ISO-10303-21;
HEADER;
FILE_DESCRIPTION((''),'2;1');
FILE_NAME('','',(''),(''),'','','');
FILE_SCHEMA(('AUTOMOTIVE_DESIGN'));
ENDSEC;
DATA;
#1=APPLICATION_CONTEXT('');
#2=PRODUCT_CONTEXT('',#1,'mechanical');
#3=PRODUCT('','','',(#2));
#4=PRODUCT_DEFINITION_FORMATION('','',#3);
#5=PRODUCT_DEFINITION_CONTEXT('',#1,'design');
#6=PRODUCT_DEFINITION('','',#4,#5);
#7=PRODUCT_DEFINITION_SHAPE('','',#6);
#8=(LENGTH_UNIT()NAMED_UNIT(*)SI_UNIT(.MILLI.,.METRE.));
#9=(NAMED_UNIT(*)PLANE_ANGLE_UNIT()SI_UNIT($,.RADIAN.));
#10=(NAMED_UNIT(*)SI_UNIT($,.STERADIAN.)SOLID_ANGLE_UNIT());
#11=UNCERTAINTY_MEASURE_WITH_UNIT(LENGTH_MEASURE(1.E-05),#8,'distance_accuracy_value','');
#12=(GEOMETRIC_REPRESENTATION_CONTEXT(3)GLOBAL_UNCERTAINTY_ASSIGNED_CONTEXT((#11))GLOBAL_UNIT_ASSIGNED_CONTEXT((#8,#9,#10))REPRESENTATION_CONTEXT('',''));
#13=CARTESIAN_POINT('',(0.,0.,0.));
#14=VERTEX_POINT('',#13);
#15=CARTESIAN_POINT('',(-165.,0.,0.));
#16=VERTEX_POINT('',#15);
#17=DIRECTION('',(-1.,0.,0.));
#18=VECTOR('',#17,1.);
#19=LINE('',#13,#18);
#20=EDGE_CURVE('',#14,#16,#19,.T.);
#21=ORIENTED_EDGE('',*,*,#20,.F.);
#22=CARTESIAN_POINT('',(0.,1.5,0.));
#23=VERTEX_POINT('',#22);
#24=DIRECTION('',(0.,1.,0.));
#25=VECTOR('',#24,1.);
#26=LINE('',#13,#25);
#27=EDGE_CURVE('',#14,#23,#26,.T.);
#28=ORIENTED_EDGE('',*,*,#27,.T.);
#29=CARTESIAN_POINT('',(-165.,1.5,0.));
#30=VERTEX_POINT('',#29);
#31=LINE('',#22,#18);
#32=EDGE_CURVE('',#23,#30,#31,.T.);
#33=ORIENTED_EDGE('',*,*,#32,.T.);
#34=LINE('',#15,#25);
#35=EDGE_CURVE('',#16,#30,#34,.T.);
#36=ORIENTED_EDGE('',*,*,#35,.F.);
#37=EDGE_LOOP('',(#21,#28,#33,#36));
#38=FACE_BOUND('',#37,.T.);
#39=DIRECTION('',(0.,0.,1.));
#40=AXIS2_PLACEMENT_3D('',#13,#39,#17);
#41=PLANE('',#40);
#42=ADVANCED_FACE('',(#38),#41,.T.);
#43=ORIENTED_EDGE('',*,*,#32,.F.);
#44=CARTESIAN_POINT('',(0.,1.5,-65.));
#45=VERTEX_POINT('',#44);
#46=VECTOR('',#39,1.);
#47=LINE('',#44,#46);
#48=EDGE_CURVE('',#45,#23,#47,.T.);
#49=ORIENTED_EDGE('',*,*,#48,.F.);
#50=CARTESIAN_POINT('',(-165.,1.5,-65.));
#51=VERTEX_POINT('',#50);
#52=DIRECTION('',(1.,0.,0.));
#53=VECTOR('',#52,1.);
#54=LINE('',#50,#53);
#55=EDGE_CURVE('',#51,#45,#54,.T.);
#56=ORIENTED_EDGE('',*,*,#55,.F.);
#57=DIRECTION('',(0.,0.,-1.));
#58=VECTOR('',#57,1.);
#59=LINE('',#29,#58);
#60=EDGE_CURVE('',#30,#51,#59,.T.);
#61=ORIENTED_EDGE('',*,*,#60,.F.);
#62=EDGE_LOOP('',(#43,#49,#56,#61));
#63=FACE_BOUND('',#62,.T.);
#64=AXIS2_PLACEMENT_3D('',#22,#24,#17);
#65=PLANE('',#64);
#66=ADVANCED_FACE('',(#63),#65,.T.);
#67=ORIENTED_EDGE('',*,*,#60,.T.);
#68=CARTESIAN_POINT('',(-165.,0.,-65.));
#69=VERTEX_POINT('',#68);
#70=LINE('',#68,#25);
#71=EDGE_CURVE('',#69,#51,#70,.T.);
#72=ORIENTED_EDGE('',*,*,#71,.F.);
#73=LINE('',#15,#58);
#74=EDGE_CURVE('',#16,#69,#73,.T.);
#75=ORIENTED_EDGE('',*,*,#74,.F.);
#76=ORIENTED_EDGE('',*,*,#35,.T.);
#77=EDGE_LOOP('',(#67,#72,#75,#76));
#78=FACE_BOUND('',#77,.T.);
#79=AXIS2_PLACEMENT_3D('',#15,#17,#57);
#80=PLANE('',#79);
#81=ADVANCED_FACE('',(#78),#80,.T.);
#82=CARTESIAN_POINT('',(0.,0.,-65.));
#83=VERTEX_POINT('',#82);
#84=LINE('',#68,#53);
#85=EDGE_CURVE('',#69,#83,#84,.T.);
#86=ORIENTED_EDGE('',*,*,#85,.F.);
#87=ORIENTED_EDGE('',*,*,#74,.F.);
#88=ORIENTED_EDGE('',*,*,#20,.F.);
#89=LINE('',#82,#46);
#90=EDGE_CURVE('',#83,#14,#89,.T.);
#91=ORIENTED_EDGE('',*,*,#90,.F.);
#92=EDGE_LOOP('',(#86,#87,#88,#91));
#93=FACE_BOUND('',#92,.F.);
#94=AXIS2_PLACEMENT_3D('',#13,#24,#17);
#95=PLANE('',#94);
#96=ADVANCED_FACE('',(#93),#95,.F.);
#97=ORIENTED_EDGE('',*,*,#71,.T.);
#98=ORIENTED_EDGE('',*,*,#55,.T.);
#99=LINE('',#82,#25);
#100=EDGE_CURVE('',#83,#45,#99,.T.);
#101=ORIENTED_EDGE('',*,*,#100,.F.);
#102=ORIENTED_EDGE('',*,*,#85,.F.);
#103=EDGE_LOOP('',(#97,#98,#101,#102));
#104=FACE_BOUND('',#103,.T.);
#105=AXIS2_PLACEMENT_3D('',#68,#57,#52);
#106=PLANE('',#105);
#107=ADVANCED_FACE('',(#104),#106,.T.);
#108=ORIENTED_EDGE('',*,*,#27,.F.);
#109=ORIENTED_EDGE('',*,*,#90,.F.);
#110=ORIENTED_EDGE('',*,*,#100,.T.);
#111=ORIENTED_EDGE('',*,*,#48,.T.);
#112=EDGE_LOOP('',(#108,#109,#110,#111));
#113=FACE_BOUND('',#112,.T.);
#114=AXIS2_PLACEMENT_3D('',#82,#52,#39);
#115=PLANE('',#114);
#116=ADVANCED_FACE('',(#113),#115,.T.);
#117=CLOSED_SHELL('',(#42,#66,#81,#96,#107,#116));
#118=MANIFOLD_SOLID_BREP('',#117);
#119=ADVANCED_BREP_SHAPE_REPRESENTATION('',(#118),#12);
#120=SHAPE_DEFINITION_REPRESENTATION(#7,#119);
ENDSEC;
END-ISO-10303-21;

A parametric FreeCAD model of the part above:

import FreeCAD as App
import Part
import Sketcher
from FreeCAD import Vector


def add_polygon(sketch, points):
    """Adds a closed chain of lines whose ends are joined by coincident constraints."""
    first, n = sketch.GeometryCount, len(points)
    for a, b in zip(points, points[1:] + points[:1]):
        sketch.addGeometry(Part.LineSegment(App.Vector(*a, 0), App.Vector(*b, 0)), False)
    for i in range(n):
        sketch.addConstraint(Sketcher.Constraint("Coincident", first + i, 2, first + (i + 1) % n, 1))

doc = App.newDocument("Part")
body = doc.addObject("PartDesign::Body", "Body")

# Sketch on XZ plane
sketch1 = body.newObject("Sketcher::SketchObject", "Sketch")
sketch1.AttachmentSupport = (doc.getObject("XZ_Plane"), [""])
sketch1.MapMode = "FlatFace"
add_polygon(sketch1, [(-165, 0), (0, 0), (0, -65), (-165, -65)])  # lines 0-3
sketch1.addConstraint([
    Sketcher.Constraint("Horizontal", 0),
    Sketcher.Constraint("Vertical", 1),
    Sketcher.Constraint("Horizontal", 2),
    Sketcher.Constraint("Vertical", 3),
    Sketcher.Constraint("Coincident", 0, 2, -1, 1),
    Sketcher.Constraint("DistanceX", 0, 1, 0, 2, 165.0),
    Sketcher.Constraint("DistanceY", 1, 2, 1, 1, 65.0),
])
pad1 = body.newObject("PartDesign::Pad", "Pad")
pad1.Profile = sketch1
pad1.Length = 1.5
pad1.Reversed = True

doc.recompute()
